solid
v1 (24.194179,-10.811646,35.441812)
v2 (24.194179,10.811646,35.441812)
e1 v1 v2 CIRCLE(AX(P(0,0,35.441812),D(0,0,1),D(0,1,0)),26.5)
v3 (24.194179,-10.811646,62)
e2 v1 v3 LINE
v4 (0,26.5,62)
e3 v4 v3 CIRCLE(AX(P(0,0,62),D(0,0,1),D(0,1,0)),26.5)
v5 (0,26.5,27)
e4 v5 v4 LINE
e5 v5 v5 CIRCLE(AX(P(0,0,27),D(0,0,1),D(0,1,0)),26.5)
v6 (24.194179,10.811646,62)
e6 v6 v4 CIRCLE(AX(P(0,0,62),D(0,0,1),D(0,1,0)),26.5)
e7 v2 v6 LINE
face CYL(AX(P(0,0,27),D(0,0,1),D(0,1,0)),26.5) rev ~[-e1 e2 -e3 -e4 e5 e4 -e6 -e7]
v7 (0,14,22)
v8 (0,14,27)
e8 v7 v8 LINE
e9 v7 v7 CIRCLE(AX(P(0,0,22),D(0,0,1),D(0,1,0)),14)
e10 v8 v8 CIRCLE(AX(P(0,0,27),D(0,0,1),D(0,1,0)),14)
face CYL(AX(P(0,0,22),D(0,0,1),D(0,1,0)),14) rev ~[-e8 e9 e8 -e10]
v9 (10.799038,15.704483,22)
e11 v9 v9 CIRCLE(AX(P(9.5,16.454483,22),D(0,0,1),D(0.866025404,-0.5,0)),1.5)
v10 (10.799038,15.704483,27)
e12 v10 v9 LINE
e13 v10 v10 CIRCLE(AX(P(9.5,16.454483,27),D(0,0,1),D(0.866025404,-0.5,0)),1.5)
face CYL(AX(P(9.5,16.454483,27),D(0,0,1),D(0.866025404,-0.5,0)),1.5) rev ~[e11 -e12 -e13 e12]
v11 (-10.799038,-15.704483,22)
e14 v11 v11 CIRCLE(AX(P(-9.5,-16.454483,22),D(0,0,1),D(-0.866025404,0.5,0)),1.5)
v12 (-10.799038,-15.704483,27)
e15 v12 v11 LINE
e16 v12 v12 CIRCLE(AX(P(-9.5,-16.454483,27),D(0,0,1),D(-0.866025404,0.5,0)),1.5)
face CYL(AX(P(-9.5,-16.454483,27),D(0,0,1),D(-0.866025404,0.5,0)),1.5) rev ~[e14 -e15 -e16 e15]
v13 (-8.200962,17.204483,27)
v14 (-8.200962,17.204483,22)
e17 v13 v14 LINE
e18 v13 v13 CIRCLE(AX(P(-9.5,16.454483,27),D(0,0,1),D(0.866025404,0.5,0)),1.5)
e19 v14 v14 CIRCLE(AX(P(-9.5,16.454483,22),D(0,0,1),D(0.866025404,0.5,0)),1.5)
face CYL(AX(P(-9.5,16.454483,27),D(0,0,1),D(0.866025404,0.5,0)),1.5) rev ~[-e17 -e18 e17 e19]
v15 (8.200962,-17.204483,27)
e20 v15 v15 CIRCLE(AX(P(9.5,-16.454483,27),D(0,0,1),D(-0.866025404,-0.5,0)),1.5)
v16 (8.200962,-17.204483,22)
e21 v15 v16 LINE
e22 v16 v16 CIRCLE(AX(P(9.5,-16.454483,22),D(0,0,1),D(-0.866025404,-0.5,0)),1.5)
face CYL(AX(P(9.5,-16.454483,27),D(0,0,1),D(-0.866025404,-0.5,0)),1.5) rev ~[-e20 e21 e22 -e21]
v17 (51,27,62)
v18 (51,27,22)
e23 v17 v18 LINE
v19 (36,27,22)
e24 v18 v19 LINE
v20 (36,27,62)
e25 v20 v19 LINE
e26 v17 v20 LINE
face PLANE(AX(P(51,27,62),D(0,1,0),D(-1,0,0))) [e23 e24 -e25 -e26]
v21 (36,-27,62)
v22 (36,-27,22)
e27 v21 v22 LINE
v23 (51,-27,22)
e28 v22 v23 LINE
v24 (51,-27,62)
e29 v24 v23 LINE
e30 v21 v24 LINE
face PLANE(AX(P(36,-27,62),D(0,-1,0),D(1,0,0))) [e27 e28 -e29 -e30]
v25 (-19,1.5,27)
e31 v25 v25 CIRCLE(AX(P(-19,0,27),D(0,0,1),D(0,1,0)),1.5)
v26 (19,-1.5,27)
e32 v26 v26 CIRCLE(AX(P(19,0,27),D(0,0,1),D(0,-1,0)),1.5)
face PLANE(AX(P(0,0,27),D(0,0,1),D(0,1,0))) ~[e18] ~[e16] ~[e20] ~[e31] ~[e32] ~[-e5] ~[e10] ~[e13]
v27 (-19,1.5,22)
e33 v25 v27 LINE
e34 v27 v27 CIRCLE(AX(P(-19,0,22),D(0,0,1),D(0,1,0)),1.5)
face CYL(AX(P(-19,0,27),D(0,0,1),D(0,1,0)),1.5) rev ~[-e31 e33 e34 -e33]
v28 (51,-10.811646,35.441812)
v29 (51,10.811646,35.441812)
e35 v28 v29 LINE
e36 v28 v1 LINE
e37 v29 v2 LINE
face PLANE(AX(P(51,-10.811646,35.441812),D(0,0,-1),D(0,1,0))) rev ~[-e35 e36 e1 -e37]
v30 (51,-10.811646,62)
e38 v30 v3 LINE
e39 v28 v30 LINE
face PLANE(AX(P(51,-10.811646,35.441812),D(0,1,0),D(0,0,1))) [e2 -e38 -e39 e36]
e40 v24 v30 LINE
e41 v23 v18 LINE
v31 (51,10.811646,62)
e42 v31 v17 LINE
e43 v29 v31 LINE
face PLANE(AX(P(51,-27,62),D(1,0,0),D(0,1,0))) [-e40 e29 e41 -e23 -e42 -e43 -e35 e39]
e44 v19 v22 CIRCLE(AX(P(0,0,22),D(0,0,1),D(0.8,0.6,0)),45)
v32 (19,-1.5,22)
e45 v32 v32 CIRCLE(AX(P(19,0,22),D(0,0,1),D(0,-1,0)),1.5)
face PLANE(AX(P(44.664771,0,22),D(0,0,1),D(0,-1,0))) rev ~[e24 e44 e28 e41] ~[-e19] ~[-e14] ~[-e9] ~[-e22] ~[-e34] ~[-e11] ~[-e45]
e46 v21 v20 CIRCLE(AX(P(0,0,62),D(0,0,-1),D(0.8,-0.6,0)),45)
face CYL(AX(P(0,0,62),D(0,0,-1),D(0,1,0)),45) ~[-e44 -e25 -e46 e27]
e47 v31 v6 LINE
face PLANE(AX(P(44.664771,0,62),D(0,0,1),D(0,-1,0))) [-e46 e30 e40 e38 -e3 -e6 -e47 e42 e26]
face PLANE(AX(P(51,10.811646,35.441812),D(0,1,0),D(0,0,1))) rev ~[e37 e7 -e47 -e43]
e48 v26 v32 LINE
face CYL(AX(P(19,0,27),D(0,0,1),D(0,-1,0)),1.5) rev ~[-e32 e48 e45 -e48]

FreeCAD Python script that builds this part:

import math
import FreeCAD as App
import Part
import Sketcher
from FreeCAD import Vector

doc = App.newDocument("Part")
params = doc.addObject("Spreadsheet::Sheet", "Params")
for row, (alias, value) in enumerate([
    ("sketch1_width", "31 mm"),
    ("sketch1_height", "5 mm"),
    ("sketch1_height2", "40 mm"),
    ("sketch1_width2", "18.5 mm"),
    ("revolution_angle", "360 deg"),
    ("sketch2_diameter", "3 mm"),
    ("sketch3_width", "54 mm"),
    ("sketch3_height", "15 mm"),
    ("pad1_length", "40 mm"),
    ("pocket2_length", "35 mm"),
], start=1):
    params.set(f"A{row}", alias)
    params.set(f"B{row}", "=" + value)
    params.setAlias(f"B{row}", alias)

body = doc.addObject("PartDesign::Body", "Body")

# Sketch on XZ plane
sketch1 = doc.addObject("Sketcher::SketchObject", "Sketch")
body.addObject(sketch1)
sketch1.AttachmentSupport = (doc.XZ_Plane, [""])
sketch1.MapMode = "FlatFace"
sketch1.addGeometry([
    Part.LineSegment(Vector(14, 5, 0), Vector(14, 0, 0)),  # 0
    Part.LineSegment(Vector(14, 0, 0), Vector(45, 0, 0)),  # 1
    Part.LineSegment(Vector(45, 0, 0), Vector(45, 40, 0)),  # 2
    Part.LineSegment(Vector(45, 40, 0), Vector(26.5, 40, 0)),  # 3
    Part.LineSegment(Vector(26.5, 40, 0), Vector(26.5, 5, 0)),  # 4
    Part.LineSegment(Vector(26.5, 5, 0), Vector(14, 5, 0)),  # 5
], False)
sketch1.addConstraint([
    Sketcher.Constraint("Coincident", 0, 2, 1, 1),
    Sketcher.Constraint("Coincident", 1, 2, 2, 1),
    Sketcher.Constraint("Coincident", 2, 2, 3, 1),
    Sketcher.Constraint("Coincident", 3, 2, 4, 1),
    Sketcher.Constraint("Coincident", 4, 2, 5, 1),
    Sketcher.Constraint("Coincident", 5, 2, 0, 1),
    Sketcher.Constraint("Vertical", 0),
    Sketcher.Constraint("Horizontal", 1),
    Sketcher.Constraint("Vertical", 2),
    Sketcher.Constraint("Horizontal", 3),
    Sketcher.Constraint("Vertical", 4),
    Sketcher.Constraint("Horizontal", 5),
    Sketcher.Constraint("PointOnObject", 0, 2, -1),
    Sketcher.Constraint("DistanceX", 1, 1, 1, 2, 31.0),
    Sketcher.Constraint("DistanceY", 0, 2, 0, 1, 5.0),
    Sketcher.Constraint("DistanceY", 2, 1, 2, 2, 40.0),
    Sketcher.Constraint("DistanceX", 3, 2, 3, 1, 18.5),
    Sketcher.Constraint("DistanceX", -1, 1, 0, 2, 14.0),
])
sketch1.setExpression("Constraints[13]", "Params.sketch1_width")
sketch1.setExpression("Constraints[14]", "Params.sketch1_height")
sketch1.setExpression("Constraints[15]", "Params.sketch1_height2")
sketch1.setExpression("Constraints[16]", "Params.sketch1_width2")
revolution = doc.addObject("PartDesign::Revolution", "Revolution")
body.addObject(revolution)
revolution.Profile = sketch1
revolution.ReferenceAxis = (sketch1, ["V_Axis"])
revolution.setExpression("Angle", "Params.revolution_angle")

# Sketch on XY plane
sketch2 = doc.addObject("Sketcher::SketchObject", "Sketch001")
body.addObject(sketch2)
sketch2.AttachmentSupport = (doc.XY_Plane, [""])
sketch2.MapMode = "FlatFace"
sketch2.AttachmentOffset = App.Placement(Vector(0, 0, 5), App.Rotation())
sketch2.addGeometry(Part.Circle(Vector(0, 19, 0), Vector(0, 0, 1), 1.5), False)
sketch2.addConstraint([
    Sketcher.Constraint("PointOnObject", 0, 3, -2),
    Sketcher.Constraint("Diameter", 0, 3.0),
    Sketcher.Constraint("DistanceY", -1, 1, 0, 3, 19.0),
])
sketch2.setExpression("Constraints[1]", "Params.sketch2_diameter")
pocket1 = doc.addObject("PartDesign::Pocket", "Pocket")
body.addObject(pocket1)
pocket1.Profile = sketch2
pocket1.Type = "ThroughAll"
doc.recompute()

polarpattern = doc.addObject("PartDesign::PolarPattern", "PolarPattern")
body.addObject(polarpattern)
polarpattern.Originals = [pocket1]
polarpattern.Axis = (doc.Z_Axis, [""])
polarpattern.Angle = 360
polarpattern.Occurrences = 6
body.Tip = polarpattern

# Sketch on XY plane
sketch3 = doc.addObject("Sketcher::SketchObject", "Sketch002")
body.addObject(sketch3)
sketch3.AttachmentSupport = (doc.XY_Plane, [""])
sketch3.MapMode = "FlatFace"
sketch3.AttachmentOffset = App.Placement(Vector(0, 0, 40), App.Rotation())
sketch3.addGeometry([
    Part.LineSegment(Vector(27, -51, 0), Vector(27, -36, 0)),  # 0
    Part.ArcOfCircle(Part.Circle(Vector(-0.000108, 0.000165, 0), Vector(0, 0, 1), 45.000197), math.radians(-61.662359), math.radians(-53.130118)),  # 1
    Part.LineSegment(Vector(21.35998, -39.607465, 0), Vector(-21.35998, -39.607465, 0)),  # 2
    Part.ArcOfCircle(Part.Circle(Vector(0.000108, 0.000165, 0), Vector(0, 0, 1), 45.000197), math.radians(-126.869882), math.radians(-118.337641)),  # 3
    Part.LineSegment(Vector(-27, -36, 0), Vector(-27, -51, 0)),  # 4
    Part.LineSegment(Vector(-27, -51, 0), Vector(27, -51, 0)),  # 5
], False)
sketch3.addConstraint([
    Sketcher.Constraint("Coincident", 0, 2, 1, 2),
    Sketcher.Constraint("Coincident", 1, 1, 2, 1),
    Sketcher.Constraint("Coincident", 2, 2, 3, 2),
    Sketcher.Constraint("Coincident", 3, 1, 4, 1),
    Sketcher.Constraint("Coincident", 4, 2, 5, 1),
    Sketcher.Constraint("Coincident", 5, 2, 0, 1),
    Sketcher.Constraint("Vertical", 0),
    Sketcher.Constraint("Horizontal", 2),
    Sketcher.Constraint("Vertical", 4),
    Sketcher.Constraint("Horizontal", 5),
    Sketcher.Constraint("Equal", 1, 3),
    Sketcher.Constraint("Symmetric", 1, 3, 3, 3, -2),
    Sketcher.Constraint("Horizontal", 0, 2, 3, 1),
    Sketcher.Constraint("DistanceX", 5, 1, 5, 2, 54.0),
    Sketcher.Constraint("DistanceY", 0, 1, 0, 2, 15.0),
    Sketcher.Constraint("DistanceY", 0, 2, -1, 1, 36.0),
    Sketcher.Constraint("Radius", 1, 45.000197),
    Sketcher.Constraint("DistanceX", 2, 2, 2, 1, 42.71996),
    Sketcher.Constraint("DistanceX", 1, 3, -1, 1, 0.000108),
])
sketch3.setExpression("Constraints[13]", "Params.sketch3_width")
sketch3.setExpression("Constraints[14]", "Params.sketch3_height")
pad1 = doc.addObject("PartDesign::Pad", "Pad")
body.addObject(pad1)
pad1.Profile = sketch3
pad1.setExpression("Length", "Params.pad1_length")
pad1.Reversed = True

# Sketch on XZ plane
sketch4 = doc.addObject("Sketcher::SketchObject", "Sketch003")
body.addObject(sketch4)
sketch4.AttachmentSupport = (doc.XZ_Plane, [""])
sketch4.MapMode = "FlatFace"
sketch4.AttachmentOffset = App.Placement(Vector(0, 0, 51), App.Rotation())
sketch4.addGeometry([
    Part.LineSegment(Vector(-10.811646, 40.875442, 0), Vector(-10.811646, 13.441812, 0)),
    Part.LineSegment(Vector(-10.811646, 13.441812, 0), Vector(10.811646, 13.441812, 0)),
    Part.LineSegment(Vector(10.811646, 13.441812, 0), Vector(10.811646, 40.875442, 0)),
    Part.LineSegment(Vector(10.811646, 40.875442, 0), Vector(-10.811646, 40.875442, 0)),
], False)
sketch4.addConstraint([
    Sketcher.Constraint("Coincident", 0, 2, 1, 1),
    Sketcher.Constraint("Coincident", 1, 2, 2, 1),
    Sketcher.Constraint("Coincident", 2, 2, 3, 1),
    Sketcher.Constraint("Coincident", 3, 2, 0, 1),
    Sketcher.Constraint("Vertical", 0),
    Sketcher.Constraint("Horizontal", 1),
    Sketcher.Constraint("Vertical", 2),
    Sketcher.Constraint("Horizontal", 3),
    Sketcher.Constraint("DistanceX", 1, 1, 1, 2, 21.623292),
    Sketcher.Constraint("DistanceY", 0, 2, 0, 1, 27.433631),
    Sketcher.Constraint("DistanceY", -1, 1, 0, 2, 13.441812),
    Sketcher.Constraint("DistanceX", 0, 2, -1, 1, 10.811646),
])
pocket2 = doc.addObject("PartDesign::Pocket", "Pocket001")
body.addObject(pocket2)
pocket2.Profile = sketch4
pocket2.setExpression("Length", "Params.pocket2_length")
body2 = doc.addObject("PartDesign::Body", "Body001")
doc.recompute()

body.Placement = App.Placement(Vector(0, 0, 22), App.Rotation(Vector(0, 0, 1), 90))
boolean = doc.addObject("PartDesign::Boolean", "Boolean")
body2.addObject(boolean)
boolean.Type = "Fuse"
boolean.addObjects([body])

doc.recompute()
